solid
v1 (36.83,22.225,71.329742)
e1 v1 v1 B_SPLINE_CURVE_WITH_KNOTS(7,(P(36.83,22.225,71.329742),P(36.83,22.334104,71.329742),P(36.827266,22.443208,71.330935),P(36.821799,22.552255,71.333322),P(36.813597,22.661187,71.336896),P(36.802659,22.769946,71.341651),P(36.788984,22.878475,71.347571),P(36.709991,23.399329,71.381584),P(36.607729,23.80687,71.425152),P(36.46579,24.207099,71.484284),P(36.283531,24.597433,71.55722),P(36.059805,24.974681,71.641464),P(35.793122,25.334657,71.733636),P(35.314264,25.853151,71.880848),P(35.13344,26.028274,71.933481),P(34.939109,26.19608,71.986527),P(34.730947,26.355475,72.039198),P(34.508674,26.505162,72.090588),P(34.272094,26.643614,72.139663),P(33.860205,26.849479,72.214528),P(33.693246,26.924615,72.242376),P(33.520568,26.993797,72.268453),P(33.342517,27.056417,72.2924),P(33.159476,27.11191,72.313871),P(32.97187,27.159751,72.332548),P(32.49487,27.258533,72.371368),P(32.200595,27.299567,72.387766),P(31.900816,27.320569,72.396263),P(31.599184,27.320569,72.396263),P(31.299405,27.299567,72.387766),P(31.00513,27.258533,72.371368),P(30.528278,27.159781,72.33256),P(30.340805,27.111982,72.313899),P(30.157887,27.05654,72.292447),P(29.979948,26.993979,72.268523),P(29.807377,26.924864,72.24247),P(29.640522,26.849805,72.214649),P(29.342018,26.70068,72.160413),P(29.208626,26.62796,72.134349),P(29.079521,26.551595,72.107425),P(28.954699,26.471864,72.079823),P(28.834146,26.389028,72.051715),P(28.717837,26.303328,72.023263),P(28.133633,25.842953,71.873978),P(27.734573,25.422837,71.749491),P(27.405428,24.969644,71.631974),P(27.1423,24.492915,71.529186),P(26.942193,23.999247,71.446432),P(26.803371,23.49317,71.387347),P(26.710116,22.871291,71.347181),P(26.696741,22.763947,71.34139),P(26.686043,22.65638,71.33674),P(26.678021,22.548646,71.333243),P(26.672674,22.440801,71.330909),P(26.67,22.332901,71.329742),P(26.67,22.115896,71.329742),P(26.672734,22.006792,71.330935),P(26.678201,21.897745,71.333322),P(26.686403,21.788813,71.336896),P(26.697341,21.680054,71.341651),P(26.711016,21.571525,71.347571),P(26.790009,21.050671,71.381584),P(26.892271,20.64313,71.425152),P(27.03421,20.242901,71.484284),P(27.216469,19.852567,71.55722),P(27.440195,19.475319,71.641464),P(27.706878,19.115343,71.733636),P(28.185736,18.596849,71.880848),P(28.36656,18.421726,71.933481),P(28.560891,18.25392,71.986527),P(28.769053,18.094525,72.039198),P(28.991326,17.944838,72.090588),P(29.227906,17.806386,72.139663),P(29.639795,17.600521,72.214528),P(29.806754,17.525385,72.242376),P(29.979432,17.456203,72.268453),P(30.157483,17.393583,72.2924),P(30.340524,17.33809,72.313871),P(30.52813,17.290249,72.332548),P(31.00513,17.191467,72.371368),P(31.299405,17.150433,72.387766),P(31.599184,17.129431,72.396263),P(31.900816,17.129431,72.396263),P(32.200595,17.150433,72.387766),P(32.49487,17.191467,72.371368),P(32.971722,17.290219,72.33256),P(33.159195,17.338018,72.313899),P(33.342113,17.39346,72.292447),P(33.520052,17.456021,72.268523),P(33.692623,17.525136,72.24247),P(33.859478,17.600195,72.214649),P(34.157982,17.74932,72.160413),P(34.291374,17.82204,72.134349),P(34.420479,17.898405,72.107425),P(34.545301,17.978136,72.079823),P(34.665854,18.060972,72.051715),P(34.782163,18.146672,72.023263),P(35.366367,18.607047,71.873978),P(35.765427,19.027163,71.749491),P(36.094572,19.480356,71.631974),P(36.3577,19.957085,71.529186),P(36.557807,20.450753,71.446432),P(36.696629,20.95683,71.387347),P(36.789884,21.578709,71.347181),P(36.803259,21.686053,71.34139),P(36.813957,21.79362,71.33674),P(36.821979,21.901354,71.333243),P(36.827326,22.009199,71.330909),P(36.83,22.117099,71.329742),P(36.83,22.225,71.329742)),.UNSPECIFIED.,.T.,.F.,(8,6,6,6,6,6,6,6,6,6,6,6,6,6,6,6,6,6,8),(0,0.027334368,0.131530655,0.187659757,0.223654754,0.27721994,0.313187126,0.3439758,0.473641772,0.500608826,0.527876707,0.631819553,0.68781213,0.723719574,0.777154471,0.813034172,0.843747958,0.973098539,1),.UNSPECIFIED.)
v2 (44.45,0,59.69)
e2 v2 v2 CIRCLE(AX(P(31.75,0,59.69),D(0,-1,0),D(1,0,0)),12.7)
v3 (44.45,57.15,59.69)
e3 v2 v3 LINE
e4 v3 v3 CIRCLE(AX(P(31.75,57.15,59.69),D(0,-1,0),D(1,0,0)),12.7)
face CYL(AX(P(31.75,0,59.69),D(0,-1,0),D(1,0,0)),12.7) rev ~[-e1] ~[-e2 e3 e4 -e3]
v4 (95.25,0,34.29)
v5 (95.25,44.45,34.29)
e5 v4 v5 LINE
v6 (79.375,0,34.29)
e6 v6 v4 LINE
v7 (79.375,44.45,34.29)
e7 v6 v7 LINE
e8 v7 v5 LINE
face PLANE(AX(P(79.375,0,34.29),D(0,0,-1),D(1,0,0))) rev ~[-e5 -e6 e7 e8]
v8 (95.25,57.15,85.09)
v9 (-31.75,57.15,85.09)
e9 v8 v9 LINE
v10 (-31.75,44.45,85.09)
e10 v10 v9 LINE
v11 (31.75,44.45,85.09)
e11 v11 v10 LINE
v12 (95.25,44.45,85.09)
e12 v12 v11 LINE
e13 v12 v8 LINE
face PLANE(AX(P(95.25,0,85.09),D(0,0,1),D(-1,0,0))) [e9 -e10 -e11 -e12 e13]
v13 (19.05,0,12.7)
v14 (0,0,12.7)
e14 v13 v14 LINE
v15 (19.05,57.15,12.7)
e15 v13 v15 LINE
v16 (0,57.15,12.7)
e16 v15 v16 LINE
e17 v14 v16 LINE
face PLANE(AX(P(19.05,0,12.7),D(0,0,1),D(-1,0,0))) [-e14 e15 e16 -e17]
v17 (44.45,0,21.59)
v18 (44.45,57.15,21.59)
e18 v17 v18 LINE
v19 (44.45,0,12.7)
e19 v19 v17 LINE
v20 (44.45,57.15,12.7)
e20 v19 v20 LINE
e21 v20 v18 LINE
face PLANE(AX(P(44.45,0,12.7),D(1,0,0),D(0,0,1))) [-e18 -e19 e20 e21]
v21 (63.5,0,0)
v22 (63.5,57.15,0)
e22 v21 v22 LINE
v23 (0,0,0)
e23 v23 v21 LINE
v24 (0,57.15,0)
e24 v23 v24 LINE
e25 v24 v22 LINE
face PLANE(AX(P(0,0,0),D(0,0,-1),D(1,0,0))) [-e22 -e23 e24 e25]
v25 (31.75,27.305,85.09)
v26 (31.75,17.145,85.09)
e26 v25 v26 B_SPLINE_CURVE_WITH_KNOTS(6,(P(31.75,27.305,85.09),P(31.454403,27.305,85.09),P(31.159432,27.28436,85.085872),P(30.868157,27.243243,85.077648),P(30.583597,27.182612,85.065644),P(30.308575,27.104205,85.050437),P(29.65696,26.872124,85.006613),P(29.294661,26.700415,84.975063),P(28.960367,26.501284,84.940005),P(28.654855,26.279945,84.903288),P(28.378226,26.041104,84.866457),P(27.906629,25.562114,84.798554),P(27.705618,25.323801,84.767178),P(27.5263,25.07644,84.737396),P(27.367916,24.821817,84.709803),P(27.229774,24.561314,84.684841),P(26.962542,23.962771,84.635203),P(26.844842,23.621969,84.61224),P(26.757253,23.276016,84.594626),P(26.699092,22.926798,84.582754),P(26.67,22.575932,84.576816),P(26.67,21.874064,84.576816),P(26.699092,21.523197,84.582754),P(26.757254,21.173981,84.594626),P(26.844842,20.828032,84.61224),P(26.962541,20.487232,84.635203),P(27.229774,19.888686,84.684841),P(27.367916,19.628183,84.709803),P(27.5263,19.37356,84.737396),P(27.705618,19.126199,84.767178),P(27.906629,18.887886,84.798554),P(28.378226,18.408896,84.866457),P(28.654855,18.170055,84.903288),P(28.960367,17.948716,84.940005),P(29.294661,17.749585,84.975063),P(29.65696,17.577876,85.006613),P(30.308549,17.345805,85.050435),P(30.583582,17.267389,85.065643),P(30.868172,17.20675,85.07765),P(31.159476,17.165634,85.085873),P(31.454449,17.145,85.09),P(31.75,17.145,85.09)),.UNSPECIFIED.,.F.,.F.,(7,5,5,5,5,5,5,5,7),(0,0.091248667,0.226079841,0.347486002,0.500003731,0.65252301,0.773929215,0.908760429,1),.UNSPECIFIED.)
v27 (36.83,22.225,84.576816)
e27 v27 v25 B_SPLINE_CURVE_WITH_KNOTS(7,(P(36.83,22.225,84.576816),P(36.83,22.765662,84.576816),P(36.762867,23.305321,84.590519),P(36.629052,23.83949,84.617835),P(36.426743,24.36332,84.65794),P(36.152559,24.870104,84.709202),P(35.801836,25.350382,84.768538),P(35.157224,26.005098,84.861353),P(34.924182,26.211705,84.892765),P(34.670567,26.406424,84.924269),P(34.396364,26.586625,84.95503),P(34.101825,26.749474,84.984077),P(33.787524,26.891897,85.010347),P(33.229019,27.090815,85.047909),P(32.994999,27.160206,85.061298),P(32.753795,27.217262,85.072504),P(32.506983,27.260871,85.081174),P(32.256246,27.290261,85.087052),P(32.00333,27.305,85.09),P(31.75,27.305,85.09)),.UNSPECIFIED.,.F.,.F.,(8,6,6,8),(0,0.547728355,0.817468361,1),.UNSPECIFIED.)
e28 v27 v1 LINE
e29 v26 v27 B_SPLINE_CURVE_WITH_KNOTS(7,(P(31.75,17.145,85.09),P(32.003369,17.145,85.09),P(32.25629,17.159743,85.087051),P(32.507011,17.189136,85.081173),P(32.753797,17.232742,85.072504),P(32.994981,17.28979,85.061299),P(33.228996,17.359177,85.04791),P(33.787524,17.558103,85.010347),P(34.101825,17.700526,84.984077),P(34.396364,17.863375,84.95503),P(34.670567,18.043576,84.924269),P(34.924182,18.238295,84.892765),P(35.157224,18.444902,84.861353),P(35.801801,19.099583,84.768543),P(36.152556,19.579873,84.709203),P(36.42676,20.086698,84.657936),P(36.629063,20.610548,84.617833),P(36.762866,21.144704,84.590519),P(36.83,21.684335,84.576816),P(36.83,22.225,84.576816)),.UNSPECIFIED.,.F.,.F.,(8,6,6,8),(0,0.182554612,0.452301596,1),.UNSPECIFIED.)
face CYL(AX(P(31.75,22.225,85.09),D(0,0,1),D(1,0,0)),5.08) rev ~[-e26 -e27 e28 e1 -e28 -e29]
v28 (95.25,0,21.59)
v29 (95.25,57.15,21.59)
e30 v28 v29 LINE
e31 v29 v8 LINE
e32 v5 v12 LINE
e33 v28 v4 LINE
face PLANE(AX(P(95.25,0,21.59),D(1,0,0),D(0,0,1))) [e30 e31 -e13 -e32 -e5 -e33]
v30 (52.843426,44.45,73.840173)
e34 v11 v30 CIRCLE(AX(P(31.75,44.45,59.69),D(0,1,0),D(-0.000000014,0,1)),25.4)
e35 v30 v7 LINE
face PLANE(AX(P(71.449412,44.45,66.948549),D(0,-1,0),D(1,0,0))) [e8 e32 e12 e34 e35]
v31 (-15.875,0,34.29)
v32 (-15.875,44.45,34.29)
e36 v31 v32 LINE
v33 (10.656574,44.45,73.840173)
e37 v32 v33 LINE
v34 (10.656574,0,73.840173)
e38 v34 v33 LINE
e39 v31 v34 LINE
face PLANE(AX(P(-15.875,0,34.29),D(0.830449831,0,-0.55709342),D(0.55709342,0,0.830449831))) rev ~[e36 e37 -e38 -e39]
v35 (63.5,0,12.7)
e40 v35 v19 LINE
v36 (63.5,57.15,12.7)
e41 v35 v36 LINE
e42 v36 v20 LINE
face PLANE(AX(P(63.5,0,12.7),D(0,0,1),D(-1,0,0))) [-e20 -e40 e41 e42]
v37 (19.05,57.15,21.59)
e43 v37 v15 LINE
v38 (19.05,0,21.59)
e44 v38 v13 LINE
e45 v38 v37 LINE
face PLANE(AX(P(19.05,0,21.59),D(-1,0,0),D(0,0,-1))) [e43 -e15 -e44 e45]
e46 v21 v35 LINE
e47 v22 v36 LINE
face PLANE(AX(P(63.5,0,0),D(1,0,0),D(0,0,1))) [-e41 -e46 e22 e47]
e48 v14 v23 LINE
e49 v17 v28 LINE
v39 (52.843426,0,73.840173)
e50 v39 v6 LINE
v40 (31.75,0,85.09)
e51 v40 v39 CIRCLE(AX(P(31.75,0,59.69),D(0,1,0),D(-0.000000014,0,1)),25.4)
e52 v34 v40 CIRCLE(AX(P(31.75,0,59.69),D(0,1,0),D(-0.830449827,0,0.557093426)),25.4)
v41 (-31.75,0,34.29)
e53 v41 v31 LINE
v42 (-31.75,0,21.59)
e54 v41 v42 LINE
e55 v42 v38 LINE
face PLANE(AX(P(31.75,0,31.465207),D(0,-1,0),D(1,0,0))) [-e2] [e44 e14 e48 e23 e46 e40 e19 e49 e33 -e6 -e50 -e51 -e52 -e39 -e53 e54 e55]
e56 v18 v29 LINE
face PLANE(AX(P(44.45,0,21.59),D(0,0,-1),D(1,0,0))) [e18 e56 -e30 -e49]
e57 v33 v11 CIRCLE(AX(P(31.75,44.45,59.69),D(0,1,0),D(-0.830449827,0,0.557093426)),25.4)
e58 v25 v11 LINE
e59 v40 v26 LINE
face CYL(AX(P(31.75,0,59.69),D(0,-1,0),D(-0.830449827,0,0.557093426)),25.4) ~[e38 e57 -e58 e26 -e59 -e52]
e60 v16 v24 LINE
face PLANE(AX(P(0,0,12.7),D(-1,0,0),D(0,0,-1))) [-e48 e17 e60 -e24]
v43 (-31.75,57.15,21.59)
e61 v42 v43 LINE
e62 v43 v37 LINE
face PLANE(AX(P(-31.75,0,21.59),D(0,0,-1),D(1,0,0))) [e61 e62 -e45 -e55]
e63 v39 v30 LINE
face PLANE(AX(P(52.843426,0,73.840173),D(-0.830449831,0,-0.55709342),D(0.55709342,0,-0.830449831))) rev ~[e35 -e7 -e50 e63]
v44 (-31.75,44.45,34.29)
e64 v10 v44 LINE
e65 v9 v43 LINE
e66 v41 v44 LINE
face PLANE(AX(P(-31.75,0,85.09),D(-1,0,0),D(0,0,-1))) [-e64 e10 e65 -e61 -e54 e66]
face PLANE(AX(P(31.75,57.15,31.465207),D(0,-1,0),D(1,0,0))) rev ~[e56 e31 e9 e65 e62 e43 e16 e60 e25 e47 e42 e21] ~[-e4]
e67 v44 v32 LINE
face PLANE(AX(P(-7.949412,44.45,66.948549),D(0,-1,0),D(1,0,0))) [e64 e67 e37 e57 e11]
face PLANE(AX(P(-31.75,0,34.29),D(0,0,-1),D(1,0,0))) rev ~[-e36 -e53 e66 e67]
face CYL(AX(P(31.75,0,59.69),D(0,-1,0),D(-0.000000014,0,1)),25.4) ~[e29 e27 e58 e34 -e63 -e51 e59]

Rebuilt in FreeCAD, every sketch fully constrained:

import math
import FreeCAD as App
import Part
import Sketcher
Q = App.Units.Quantity


def add_polygon(sketch, points):
    """Adds a closed chain of lines whose ends are joined by coincident constraints."""
    first, n = sketch.GeometryCount, len(points)
    for a, b in zip(points, points[1:] + points[:1]):
        sketch.addGeometry(Part.LineSegment(App.Vector(*a, 0), App.Vector(*b, 0)), False)
    for i in range(n):
        sketch.addConstraint(Sketcher.Constraint("Coincident", first + i, 2, first + (i + 1) % n, 1))

doc = App.newDocument("Part")
body = doc.addObject("PartDesign::Body", "Body")

# Sketch on XZ plane
sketch1 = body.newObject("Sketcher::SketchObject", "Sketch")
sketch1.AttachmentSupport = (doc.getObject("XZ_Plane"), [""])
sketch1.MapMode = "FlatFace"
add_polygon(sketch1, [(0, 12.7), (0, 0), (63.5, 0), (63.5, 12.7), (44.45, 12.7), (44.45, 21.59), (95.25, 21.59), (95.25, 85.09), (-31.75, 85.09), (-31.75, 21.59), (19.05, 21.59), (19.05, 12.7)])  # lines 0-11
sketch1.addGeometry(Part.Circle(App.Vector(31.75, 59.69, 0), App.Vector(0, 0, 1), 12.7), False)  # 12
sketch1.addConstraint(Sketcher.Constraint("Vertical", 0))
sketch1.addConstraint(Sketcher.Constraint("Horizontal", 1))
sketch1.addConstraint(Sketcher.Constraint("Vertical", 2))
sketch1.addConstraint(Sketcher.Constraint("Horizontal", 3))
sketch1.addConstraint(Sketcher.Constraint("Vertical", 4))
sketch1.addConstraint(Sketcher.Constraint("Horizontal", 5))
sketch1.addConstraint(Sketcher.Constraint("Vertical", 6))
sketch1.addConstraint(Sketcher.Constraint("Horizontal", 7))
sketch1.addConstraint(Sketcher.Constraint("Vertical", 8))
sketch1.addConstraint(Sketcher.Constraint("Horizontal", 9))
sketch1.addConstraint(Sketcher.Constraint("Vertical", 10))
sketch1.addConstraint(Sketcher.Constraint("Horizontal", 11))
sketch1.addConstraint(Sketcher.Constraint("Coincident", 0, 2, -1, 1))
sketch1.addConstraint(Sketcher.Constraint("Horizontal", 5, 2, 8, 2))
sketch1.addConstraint(Sketcher.Constraint("Horizontal", 3, 2, 10, 2))
sketch1.addConstraint(Sketcher.Constraint("Equal", 5, 9))
sketch1.addConstraint(Sketcher.Constraint("Equal", 3, 11))
sketch1.addConstraint(Sketcher.Constraint("Equal", 1, 6))
sketch1.addConstraint(Sketcher.Constraint("Diameter", 12, Q("1 in")))
sketch1.addConstraint(Sketcher.Constraint("DistanceX", 5, 1, 5, 2, Q("2 in")))
sketch1.addConstraint(Sketcher.Constraint("DistanceX", 7, 2, 7, 1, Q("5 in")))
sketch1.addConstraint(Sketcher.Constraint("DistanceX", 1, 1, 1, 2, Q("2.5 in")))
sketch1.addConstraint(Sketcher.Constraint("DistanceY", 0, 2, 0, 1, Q("0.5 in")))
sketch1.addConstraint(Sketcher.Constraint("DistanceY", 12, 3, 6, 2, Q("1 in")))
sketch1.addConstraint(Sketcher.Constraint("DistanceY", 4, 1, 4, 2, Q("0.35 in")))
sketch1.addConstraint(Sketcher.Constraint("DistanceX", 12, 3, 3, 2, Q("0.5 in")))
pad1 = body.newObject("PartDesign::Pad", "Pad")
pad1.Profile = sketch1
pad1.Length = Q("2.25 in")
pad1.Reversed = True

# Sketch on XZ plane
sketch2 = body.newObject("Sketcher::SketchObject", "Sketch001")
sketch2.AttachmentSupport = (doc.getObject("XZ_Plane"), [""])
sketch2.MapMode = "FlatFace"
sketch2.addGeometry(Part.LineSegment(App.Vector(79.375, 34.29, 0), App.Vector(95.25, 34.29, 0)), False)
sketch2.addGeometry(Part.LineSegment(App.Vector(95.25, 34.29, 0), App.Vector(95.25, 85.09, 0)), False)
sketch2.addGeometry(Part.LineSegment(App.Vector(95.25, 85.09, 0), App.Vector(31.75, 85.09, 0)), False)
sketch2.addGeometry(Part.ArcOfCircle(Part.Circle(App.Vector(31.75, 59.69, 0), App.Vector(0, 0, 1), 25.4), math.radians(33.855026), math.radians(90.000001)), False)
sketch2.addGeometry(Part.LineSegment(App.Vector(52.843426, 73.840173, 0), App.Vector(79.375, 34.29, 0)), False)
sketch2.addGeometry(Part.LineSegment(App.Vector(-31.75, 85.09, 0), App.Vector(-31.75, 34.29, 0)), False)
sketch2.addGeometry(Part.LineSegment(App.Vector(-31.75, 34.29, 0), App.Vector(-15.875, 34.29, 0)), False)
sketch2.addGeometry(Part.LineSegment(App.Vector(-15.875, 34.29, 0), App.Vector(10.656574, 73.840173, 0)), False)
sketch2.addGeometry(Part.ArcOfCircle(Part.Circle(App.Vector(31.75, 59.69, 0), App.Vector(0, 0, 1), 25.4), math.radians(89.999999), math.radians(146.144974)), False)
sketch2.addGeometry(Part.LineSegment(App.Vector(31.75, 85.09, 0), App.Vector(-31.75, 85.09, 0)), False)
sketch2.addConstraint(Sketcher.Constraint("Coincident", 0, 2, 1, 1))
sketch2.addConstraint(Sketcher.Constraint("Coincident", 1, 2, 2, 1))
sketch2.addConstraint(Sketcher.Constraint("Tangent", 2, 2, 3, 2))
sketch2.addConstraint(Sketcher.Constraint("Tangent", 3, 1, 4, 1))
sketch2.addConstraint(Sketcher.Constraint("Coincident", 4, 2, 0, 1))
sketch2.addConstraint(Sketcher.Constraint("Coincident", 5, 2, 6, 1))
sketch2.addConstraint(Sketcher.Constraint("Coincident", 6, 2, 7, 1))
sketch2.addConstraint(Sketcher.Constraint("Tangent", 7, 2, 8, 2))
sketch2.addConstraint(Sketcher.Constraint("Tangent", 8, 1, 9, 1))
sketch2.addConstraint(Sketcher.Constraint("Coincident", 9, 2, 5, 1))
sketch2.addConstraint(Sketcher.Constraint("Horizontal", 0))
sketch2.addConstraint(Sketcher.Constraint("Vertical", 1))
sketch2.addConstraint(Sketcher.Constraint("Horizontal", 2))
sketch2.addConstraint(Sketcher.Constraint("Vertical", 5))
sketch2.addConstraint(Sketcher.Constraint("Horizontal", 6))
sketch2.addConstraint(Sketcher.Constraint("Horizontal", 9))
sketch2.addConstraint(Sketcher.Constraint("Coincident", 8, 3, 3, 3))
sketch2.addConstraint(Sketcher.Constraint("Equal", 3, 8))
sketch2.addConstraint(Sketcher.Constraint("Horizontal", 4, 2, 5, 2))
sketch2.addConstraint(Sketcher.Constraint("Horizontal", 3, 1, 7, 2))
sketch2.addConstraint(Sketcher.Constraint("Equal", 0, 6))
sketch2.addConstraint(Sketcher.Constraint("Radius", 3, Q("1 in")))
sketch2.addConstraint(Sketcher.Constraint("DistanceY", 1, 1, 1, 2, Q("2 in")))
sketch2.addConstraint(Sketcher.Constraint("DistanceX", 2, 2, 2, 1, Q("2.5 in")))
sketch2.addConstraint(Sketcher.Constraint("DistanceX", 0, 1, 0, 2, Q("0.625 in")))
sketch2.addConstraint(Sketcher.Constraint("DistanceX", -1, 1, 3, 3, Q("1.25 in")))
sketch2.addConstraint(Sketcher.Constraint("DistanceY", -1, 1, 3, 3, Q("2.35 in")))
pocket1 = body.newObject("PartDesign::Pocket", "Pocket")
pocket1.Profile = sketch2
pocket1.Length = Q("1.75 in")

# Sketch on XY plane
sketch3 = body.newObject("Sketcher::SketchObject", "Sketch002")
sketch3.AttachmentSupport = (doc.getObject("XY_Plane"), [""])
sketch3.MapMode = "FlatFace"
sketch3.AttachmentOffset = App.Placement(App.Vector(0, 0, 3.35 * 25.4), App.Rotation())
sketch3.addGeometry(Part.Circle(App.Vector(31.75, 22.225, 0), App.Vector(0, 0, 1), 5.08), False)
sketch3.addConstraint(Sketcher.Constraint("Diameter", 0, Q("0.4 in")))
sketch3.addConstraint(Sketcher.Constraint("DistanceX", -1, 1, 0, 3, Q("1.25 in")))
sketch3.addConstraint(Sketcher.Constraint("DistanceY", -1, 1, 0, 3, Q("0.875 in")))
pocket2 = body.newObject("PartDesign::Pocket", "Pocket001")
pocket2.Profile = sketch3
pocket2.Length = Q("1 in")

doc.recompute()
